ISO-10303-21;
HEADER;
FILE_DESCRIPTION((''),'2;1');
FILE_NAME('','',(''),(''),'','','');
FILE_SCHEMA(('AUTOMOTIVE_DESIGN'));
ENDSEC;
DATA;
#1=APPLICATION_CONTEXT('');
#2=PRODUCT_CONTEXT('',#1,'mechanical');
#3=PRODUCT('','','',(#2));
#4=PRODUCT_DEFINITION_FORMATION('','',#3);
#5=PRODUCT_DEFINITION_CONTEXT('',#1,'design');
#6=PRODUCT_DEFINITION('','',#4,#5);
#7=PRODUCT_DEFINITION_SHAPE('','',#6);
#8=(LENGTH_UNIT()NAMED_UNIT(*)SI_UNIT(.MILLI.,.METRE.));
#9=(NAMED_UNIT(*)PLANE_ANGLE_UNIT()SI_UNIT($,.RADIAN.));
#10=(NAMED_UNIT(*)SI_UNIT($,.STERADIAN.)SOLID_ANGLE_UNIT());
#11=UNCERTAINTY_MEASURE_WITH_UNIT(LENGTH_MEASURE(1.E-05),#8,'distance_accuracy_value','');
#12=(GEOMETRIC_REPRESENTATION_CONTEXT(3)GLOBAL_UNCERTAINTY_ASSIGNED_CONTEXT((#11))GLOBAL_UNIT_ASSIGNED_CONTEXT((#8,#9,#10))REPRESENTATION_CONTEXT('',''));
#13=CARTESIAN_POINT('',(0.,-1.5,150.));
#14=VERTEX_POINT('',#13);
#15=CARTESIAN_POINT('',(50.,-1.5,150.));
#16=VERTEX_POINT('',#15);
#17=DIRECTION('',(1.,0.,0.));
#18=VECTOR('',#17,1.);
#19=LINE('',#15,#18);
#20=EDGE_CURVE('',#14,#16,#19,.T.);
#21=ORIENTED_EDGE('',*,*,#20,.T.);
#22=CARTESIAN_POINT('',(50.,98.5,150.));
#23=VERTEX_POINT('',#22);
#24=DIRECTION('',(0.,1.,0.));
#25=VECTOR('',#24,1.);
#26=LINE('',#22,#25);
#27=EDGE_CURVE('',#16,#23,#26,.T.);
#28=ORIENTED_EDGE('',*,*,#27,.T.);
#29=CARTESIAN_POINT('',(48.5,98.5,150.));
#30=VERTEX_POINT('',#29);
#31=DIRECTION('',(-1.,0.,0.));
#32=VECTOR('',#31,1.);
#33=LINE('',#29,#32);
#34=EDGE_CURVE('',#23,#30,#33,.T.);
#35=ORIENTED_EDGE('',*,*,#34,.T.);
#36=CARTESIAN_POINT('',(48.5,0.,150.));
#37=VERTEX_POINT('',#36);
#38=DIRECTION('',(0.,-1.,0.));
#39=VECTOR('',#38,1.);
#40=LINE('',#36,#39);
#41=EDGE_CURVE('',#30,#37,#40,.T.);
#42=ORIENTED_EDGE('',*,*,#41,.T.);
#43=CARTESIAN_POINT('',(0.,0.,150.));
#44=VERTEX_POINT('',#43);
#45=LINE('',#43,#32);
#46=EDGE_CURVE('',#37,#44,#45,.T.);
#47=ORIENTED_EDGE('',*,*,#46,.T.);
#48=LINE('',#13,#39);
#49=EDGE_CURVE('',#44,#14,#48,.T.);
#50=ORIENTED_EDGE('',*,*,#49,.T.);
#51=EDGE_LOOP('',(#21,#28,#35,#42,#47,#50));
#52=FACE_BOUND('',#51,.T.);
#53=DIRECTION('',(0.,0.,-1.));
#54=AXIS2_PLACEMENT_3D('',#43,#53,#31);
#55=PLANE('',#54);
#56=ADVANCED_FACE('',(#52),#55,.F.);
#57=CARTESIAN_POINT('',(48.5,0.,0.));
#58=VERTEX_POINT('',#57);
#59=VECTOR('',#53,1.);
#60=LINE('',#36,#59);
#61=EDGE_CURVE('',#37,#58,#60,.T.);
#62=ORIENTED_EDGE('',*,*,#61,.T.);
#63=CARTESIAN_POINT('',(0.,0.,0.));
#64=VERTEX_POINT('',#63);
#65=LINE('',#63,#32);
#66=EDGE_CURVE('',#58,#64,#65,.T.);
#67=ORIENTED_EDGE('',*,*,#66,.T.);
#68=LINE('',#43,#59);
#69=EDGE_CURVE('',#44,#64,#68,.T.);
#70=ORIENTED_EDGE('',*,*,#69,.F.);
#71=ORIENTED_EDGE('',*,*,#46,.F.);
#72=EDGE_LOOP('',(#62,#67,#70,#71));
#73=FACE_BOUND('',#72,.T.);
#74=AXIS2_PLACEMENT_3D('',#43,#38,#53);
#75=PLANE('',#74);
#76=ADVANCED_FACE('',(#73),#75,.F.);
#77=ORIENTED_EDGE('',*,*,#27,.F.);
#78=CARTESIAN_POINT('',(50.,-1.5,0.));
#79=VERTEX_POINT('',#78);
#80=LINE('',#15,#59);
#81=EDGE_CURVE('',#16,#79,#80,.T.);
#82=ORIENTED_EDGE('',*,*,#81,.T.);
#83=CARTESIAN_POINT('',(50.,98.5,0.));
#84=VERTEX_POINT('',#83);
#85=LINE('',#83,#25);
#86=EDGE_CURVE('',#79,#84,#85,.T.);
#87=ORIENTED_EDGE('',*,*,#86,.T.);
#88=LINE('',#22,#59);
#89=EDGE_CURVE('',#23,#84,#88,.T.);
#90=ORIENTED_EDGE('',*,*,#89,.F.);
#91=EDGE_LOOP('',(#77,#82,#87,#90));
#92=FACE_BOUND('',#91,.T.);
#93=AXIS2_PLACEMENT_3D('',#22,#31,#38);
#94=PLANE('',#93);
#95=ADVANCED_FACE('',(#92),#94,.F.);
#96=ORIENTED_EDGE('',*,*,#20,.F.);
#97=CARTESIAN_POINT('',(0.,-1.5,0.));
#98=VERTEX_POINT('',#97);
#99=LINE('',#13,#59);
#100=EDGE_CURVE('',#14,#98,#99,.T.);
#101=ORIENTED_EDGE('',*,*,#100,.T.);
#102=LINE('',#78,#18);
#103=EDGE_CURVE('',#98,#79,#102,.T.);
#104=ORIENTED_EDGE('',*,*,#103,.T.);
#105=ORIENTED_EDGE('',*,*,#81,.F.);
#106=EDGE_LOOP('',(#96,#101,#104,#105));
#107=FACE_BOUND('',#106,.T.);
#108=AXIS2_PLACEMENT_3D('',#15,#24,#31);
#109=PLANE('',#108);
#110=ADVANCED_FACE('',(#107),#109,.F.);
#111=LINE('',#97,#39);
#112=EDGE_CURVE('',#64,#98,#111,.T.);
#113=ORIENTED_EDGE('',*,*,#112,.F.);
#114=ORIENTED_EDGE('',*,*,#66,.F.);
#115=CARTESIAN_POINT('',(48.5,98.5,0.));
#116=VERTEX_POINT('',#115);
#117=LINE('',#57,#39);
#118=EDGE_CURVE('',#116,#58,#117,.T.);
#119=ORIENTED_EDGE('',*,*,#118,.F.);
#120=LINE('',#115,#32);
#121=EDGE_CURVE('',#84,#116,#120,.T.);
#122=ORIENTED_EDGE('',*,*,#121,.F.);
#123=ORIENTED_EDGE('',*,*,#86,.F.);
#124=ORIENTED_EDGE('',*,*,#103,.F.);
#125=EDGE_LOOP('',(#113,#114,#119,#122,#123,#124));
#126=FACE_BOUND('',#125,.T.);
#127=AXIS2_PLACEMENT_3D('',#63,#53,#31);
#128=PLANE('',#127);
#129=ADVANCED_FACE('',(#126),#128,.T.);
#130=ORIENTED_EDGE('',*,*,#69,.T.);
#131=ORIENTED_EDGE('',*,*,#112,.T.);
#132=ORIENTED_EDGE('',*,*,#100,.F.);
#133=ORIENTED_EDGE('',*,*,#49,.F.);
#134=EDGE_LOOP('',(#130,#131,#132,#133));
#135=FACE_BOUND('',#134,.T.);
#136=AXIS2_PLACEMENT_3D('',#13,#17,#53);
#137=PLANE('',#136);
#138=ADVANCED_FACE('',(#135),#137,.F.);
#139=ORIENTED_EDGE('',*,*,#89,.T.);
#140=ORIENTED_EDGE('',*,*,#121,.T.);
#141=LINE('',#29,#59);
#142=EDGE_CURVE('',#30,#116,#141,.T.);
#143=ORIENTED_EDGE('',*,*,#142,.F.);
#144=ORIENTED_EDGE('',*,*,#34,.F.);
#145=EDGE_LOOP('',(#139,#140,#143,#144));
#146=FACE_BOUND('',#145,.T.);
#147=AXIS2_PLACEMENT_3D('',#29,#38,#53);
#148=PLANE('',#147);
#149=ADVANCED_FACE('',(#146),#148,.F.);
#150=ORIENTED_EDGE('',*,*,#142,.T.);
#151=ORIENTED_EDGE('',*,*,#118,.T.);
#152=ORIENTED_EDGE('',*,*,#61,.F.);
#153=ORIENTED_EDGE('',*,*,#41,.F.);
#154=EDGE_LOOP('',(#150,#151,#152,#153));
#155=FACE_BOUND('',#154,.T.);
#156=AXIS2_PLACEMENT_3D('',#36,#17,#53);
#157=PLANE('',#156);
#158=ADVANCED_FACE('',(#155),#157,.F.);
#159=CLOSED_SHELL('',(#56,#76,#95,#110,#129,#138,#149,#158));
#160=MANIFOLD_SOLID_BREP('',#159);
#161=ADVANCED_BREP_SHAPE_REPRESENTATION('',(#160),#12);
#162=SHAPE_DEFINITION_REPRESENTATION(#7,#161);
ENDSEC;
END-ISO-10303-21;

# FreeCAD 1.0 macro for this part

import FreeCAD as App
import Part
import Sketcher
from FreeCAD import Vector


def add_polygon(sketch, points):
    """Adds a closed chain of lines whose ends are joined by coincident constraints."""
    first, n = sketch.GeometryCount, len(points)
    for a, b in zip(points, points[1:] + points[:1]):
        sketch.addGeometry(Part.LineSegment(App.Vector(*a, 0), App.Vector(*b, 0)), False)
    for i in range(n):
        sketch.addConstraint(Sketcher.Constraint("Coincident", first + i, 2, first + (i + 1) % n, 1))

doc = App.newDocument("Part")
body = doc.addObject("PartDesign::Body", "Body")

sketch1 = body.newObject("Sketcher::SketchObject", "Sketch")
sketch1.AttachmentSupport = (doc.getObject("XY_Plane"), [""])
sketch1.MapMode = "FlatFace"
add_polygon(sketch1, [(48.5, 0), (0, 0), (0, -1.5), (50, -1.5), (50, 98.5), (48.5, 98.5)])
sketch1.addConstraint(Sketcher.Constraint("Horizontal", 0))
sketch1.addConstraint(Sketcher.Constraint("Vertical", 1))
sketch1.addConstraint(Sketcher.Constraint("Horizontal", 2))
sketch1.addConstraint(Sketcher.Constraint("Vertical", 3))
sketch1.addConstraint(Sketcher.Constraint("Horizontal", 4))
sketch1.addConstraint(Sketcher.Constraint("Vertical", 5))
sketch1.addConstraint(Sketcher.Constraint("Coincident", 0, 2, -1, 1))
sketch1.addConstraint(Sketcher.Constraint("Equal", 4, 1))
sketch1.addConstraint(Sketcher.Constraint("DistanceX", 2, 1, 2, 2, 50.0))
sketch1.addConstraint(Sketcher.Constraint("DistanceY", 3, 1, 3, 2, 100.0))
sketch1.addConstraint(Sketcher.Constraint("DistanceX", 0, 2, 0, 1, 48.5))
pad1 = body.newObject("PartDesign::Pad", "Pad")
pad1.Profile = sketch1
pad1.Length = 150

doc.recompute()
